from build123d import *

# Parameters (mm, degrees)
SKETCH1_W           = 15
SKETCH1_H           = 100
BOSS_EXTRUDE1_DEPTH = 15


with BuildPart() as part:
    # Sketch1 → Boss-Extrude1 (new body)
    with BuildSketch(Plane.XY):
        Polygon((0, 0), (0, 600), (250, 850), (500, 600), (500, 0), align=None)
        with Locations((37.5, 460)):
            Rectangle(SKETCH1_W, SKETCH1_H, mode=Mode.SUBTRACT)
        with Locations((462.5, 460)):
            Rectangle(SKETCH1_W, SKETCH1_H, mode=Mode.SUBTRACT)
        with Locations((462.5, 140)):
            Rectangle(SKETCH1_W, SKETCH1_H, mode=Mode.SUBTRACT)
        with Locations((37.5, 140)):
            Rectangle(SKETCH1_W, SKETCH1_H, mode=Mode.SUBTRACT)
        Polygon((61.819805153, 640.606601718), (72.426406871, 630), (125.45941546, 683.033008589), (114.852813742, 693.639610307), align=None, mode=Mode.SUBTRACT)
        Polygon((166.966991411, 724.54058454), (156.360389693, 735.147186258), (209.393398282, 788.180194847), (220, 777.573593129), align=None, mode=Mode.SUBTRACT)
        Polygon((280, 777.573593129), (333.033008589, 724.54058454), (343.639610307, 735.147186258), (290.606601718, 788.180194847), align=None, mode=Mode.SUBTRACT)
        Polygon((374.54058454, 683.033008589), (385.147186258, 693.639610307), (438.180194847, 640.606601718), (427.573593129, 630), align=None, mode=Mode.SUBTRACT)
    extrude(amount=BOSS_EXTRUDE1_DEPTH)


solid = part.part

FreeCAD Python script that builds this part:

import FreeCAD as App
import Part
import Sketcher

doc = App.newDocument("Part")
body = doc.addObject("PartDesign::Body", "Body")

# Sketch on XY plane
sketch1 = body.newObject("Sketcher::SketchObject", "Sketch")
sketch1.AttachmentSupport = (doc.getObject("XY_Plane"), [""])
sketch1.MapMode = "FlatFace"
sketch1.addGeometry(Part.LineSegment(App.Vector(0, 600, 0), App.Vector(0, 0, 0)), False)
sketch1.addGeometry(Part.LineSegment(App.Vector(0, 0, 0), App.Vector(500, 0, 0)), False)
sketch1.addGeometry(Part.LineSegment(App.Vector(500, 0, 0), App.Vector(500, 600, 0)), False)
sketch1.addGeometry(Part.LineSegment(App.Vector(500, 600, 0), App.Vector(250, 850, 0)), False)
sketch1.addGeometry(Part.LineSegment(App.Vector(250, 850, 0), App.Vector(0, 600, 0)), False)
sketch1.addGeometry(Part.LineSegment(App.Vector(455, 90, 0), App.Vector(455, 190, 0)), False)
sketch1.addGeometry(Part.LineSegment(App.Vector(455, 190, 0), App.Vector(470, 190, 0)), False)
sketch1.addGeometry(Part.LineSegment(App.Vector(470, 190, 0), App.Vector(470, 90, 0)), False)
sketch1.addGeometry(Part.LineSegment(App.Vector(470, 90, 0), App.Vector(455, 90, 0)), False)
sketch1.addGeometry(Part.LineSegment(App.Vector(30, 90, 0), App.Vector(30, 190, 0)), False)
sketch1.addGeometry(Part.LineSegment(App.Vector(30, 190, 0), App.Vector(45, 190, 0)), False)
sketch1.addGeometry(Part.LineSegment(App.Vector(45, 190, 0), App.Vector(45, 90, 0)), False)
sketch1.addGeometry(Part.LineSegment(App.Vector(45, 90, 0), App.Vector(30, 90, 0)), False)
sketch1.addGeometry(Part.LineSegment(App.Vector(455, 410, 0), App.Vector(455, 510, 0)), False)
sketch1.addGeometry(Part.LineSegment(App.Vector(455, 510, 0), App.Vector(470, 510, 0)), False)
sketch1.addGeometry(Part.LineSegment(App.Vector(470, 510, 0), App.Vector(470, 410, 0)), False)
sketch1.addGeometry(Part.LineSegment(App.Vector(470, 410, 0), App.Vector(455, 410, 0)), False)
sketch1.addGeometry(Part.LineSegment(App.Vector(375, 683, 0), App.Vector(385, 694, 0)), False)
sketch1.addGeometry(Part.LineSegment(App.Vector(385, 694, 0), App.Vector(438, 641, 0)), False)
sketch1.addGeometry(Part.LineSegment(App.Vector(438, 641, 0), App.Vector(428, 630, 0)), False)
sketch1.addGeometry(Part.LineSegment(App.Vector(428, 630, 0), App.Vector(375, 683, 0)), False)
sketch1.addGeometry(Part.LineSegment(App.Vector(280, 778, 0), App.Vector(291, 788, 0)), False)
sketch1.addGeometry(Part.LineSegment(App.Vector(291, 788, 0), App.Vector(344, 735, 0)), False)
sketch1.addGeometry(Part.LineSegment(App.Vector(344, 735, 0), App.Vector(333, 725, 0)), False)
sketch1.addGeometry(Part.LineSegment(App.Vector(333, 725, 0), App.Vector(280, 778, 0)), False)
sketch1.addGeometry(Part.LineSegment(App.Vector(30, 410, 0), App.Vector(30, 510, 0)), False)
sketch1.addGeometry(Part.LineSegment(App.Vector(30, 510, 0), App.Vector(45, 510, 0)), False)
sketch1.addGeometry(Part.LineSegment(App.Vector(45, 510, 0), App.Vector(45, 410, 0)), False)
sketch1.addGeometry(Part.LineSegment(App.Vector(45, 410, 0), App.Vector(30, 410, 0)), False)
sketch1.addGeometry(Part.LineSegment(App.Vector(167, 725, 0), App.Vector(156, 735, 0)), False)
sketch1.addGeometry(Part.LineSegment(App.Vector(156, 735, 0), App.Vector(209, 788, 0)), False)
sketch1.addGeometry(Part.LineSegment(App.Vector(209, 788, 0), App.Vector(220, 778, 0)), False)
sketch1.addGeometry(Part.LineSegment(App.Vector(220, 778, 0), App.Vector(167, 725, 0)), False)
sketch1.addGeometry(Part.LineSegment(App.Vector(62, 641, 0), App.Vector(115, 694, 0)), False)
sketch1.addGeometry(Part.LineSegment(App.Vector(115, 694, 0), App.Vector(125, 683, 0)), False)
sketch1.addGeometry(Part.LineSegment(App.Vector(125, 683, 0), App.Vector(72, 630, 0)), False)
sketch1.addGeometry(Part.LineSegment(App.Vector(72, 630, 0), App.Vector(62, 641, 0)), False)
sketch1.addConstraint(Sketcher.Constraint("Coincident", 0, 2, 1, 1))
sketch1.addConstraint(Sketcher.Constraint("Coincident", 1, 2, 2, 1))
sketch1.addConstraint(Sketcher.Constraint("Coincident", 2, 2, 3, 1))
sketch1.addConstraint(Sketcher.Constraint("Coincident", 3, 2, 4, 1))
sketch1.addConstraint(Sketcher.Constraint("Coincident", 4, 2, 0, 1))
sketch1.addConstraint(Sketcher.Constraint("Coincident", 5, 2, 6, 1))
sketch1.addConstraint(Sketcher.Constraint("Coincident", 6, 2, 7, 1))
sketch1.addConstraint(Sketcher.Constraint("Coincident", 7, 2, 8, 1))
sketch1.addConstraint(Sketcher.Constraint("Coincident", 8, 2, 5, 1))
sketch1.addConstraint(Sketcher.Constraint("Coincident", 9, 2, 10, 1))
sketch1.addConstraint(Sketcher.Constraint("Coincident", 10, 2, 11, 1))
sketch1.addConstraint(Sketcher.Constraint("Coincident", 11, 2, 12, 1))
sketch1.addConstraint(Sketcher.Constraint("Coincident", 12, 2, 9, 1))
sketch1.addConstraint(Sketcher.Constraint("Coincident", 13, 2, 14, 1))
sketch1.addConstraint(Sketcher.Constraint("Coincident", 14, 2, 15, 1))
sketch1.addConstraint(Sketcher.Constraint("Coincident", 15, 2, 16, 1))
sketch1.addConstraint(Sketcher.Constraint("Coincident", 16, 2, 13, 1))
sketch1.addConstraint(Sketcher.Constraint("Coincident", 17, 2, 18, 1))
sketch1.addConstraint(Sketcher.Constraint("Coincident", 18, 2, 19, 1))
sketch1.addConstraint(Sketcher.Constraint("Coincident", 19, 2, 20, 1))
sketch1.addConstraint(Sketcher.Constraint("Coincident", 20, 2, 17, 1))
sketch1.addConstraint(Sketcher.Constraint("Coincident", 21, 2, 22, 1))
sketch1.addConstraint(Sketcher.Constraint("Coincident", 22, 2, 23, 1))
sketch1.addConstraint(Sketcher.Constraint("Coincident", 23, 2, 24, 1))
sketch1.addConstraint(Sketcher.Constraint("Coincident", 24, 2, 21, 1))
sketch1.addConstraint(Sketcher.Constraint("Coincident", 25, 2, 26, 1))
sketch1.addConstraint(Sketcher.Constraint("Coincident", 26, 2, 27, 1))
sketch1.addConstraint(Sketcher.Constraint("Coincident", 27, 2, 28, 1))
sketch1.addConstraint(Sketcher.Constraint("Coincident", 28, 2, 25, 1))
sketch1.addConstraint(Sketcher.Constraint("Coincident", 29, 2, 30, 1))
sketch1.addConstraint(Sketcher.Constraint("Coincident", 30, 2, 31, 1))
sketch1.addConstraint(Sketcher.Constraint("Coincident", 31, 2, 32, 1))
sketch1.addConstraint(Sketcher.Constraint("Coincident", 32, 2, 29, 1))
sketch1.addConstraint(Sketcher.Constraint("Coincident", 33, 2, 34, 1))
sketch1.addConstraint(Sketcher.Constraint("Coincident", 34, 2, 35, 1))
sketch1.addConstraint(Sketcher.Constraint("Coincident", 35, 2, 36, 1))
sketch1.addConstraint(Sketcher.Constraint("Coincident", 36, 2, 33, 1))
sketch1.addConstraint(Sketcher.Constraint("Vertical", 0))
sketch1.addConstraint(Sketcher.Constraint("Horizontal", 1))
sketch1.addConstraint(Sketcher.Constraint("Vertical", 2))
sketch1.addConstraint(Sketcher.Constraint("Vertical", 5))
sketch1.addConstraint(Sketcher.Constraint("Horizontal", 6))
sketch1.addConstraint(Sketcher.Constraint("Vertical", 7))
sketch1.addConstraint(Sketcher.Constraint("Horizontal", 8))
sketch1.addConstraint(Sketcher.Constraint("Vertical", 9))
sketch1.addConstraint(Sketcher.Constraint("Horizontal", 10))
sketch1.addConstraint(Sketcher.Constraint("Vertical", 11))
sketch1.addConstraint(Sketcher.Constraint("Horizontal", 12))
sketch1.addConstraint(Sketcher.Constraint("Vertical", 13))
sketch1.addConstraint(Sketcher.Constraint("Horizontal", 14))
sketch1.addConstraint(Sketcher.Constraint("Vertical", 15))
sketch1.addConstraint(Sketcher.Constraint("Horizontal", 16))
sketch1.addConstraint(Sketcher.Constraint("Vertical", 25))
sketch1.addConstraint(Sketcher.Constraint("Horizontal", 26))
sketch1.addConstraint(Sketcher.Constraint("Vertical", 27))
sketch1.addConstraint(Sketcher.Constraint("Horizontal", 28))
sketch1.addConstraint(Sketcher.Constraint("Coincident", 0, 2, -1, 1))
sketch1.addConstraint(Sketcher.Constraint("Perpendicular", 3, 4))
sketch1.addConstraint(Sketcher.Constraint("Parallel", 4, 17))
sketch1.addConstraint(Sketcher.Constraint("Perpendicular", 17, 18))
sketch1.addConstraint(Sketcher.Constraint("Perpendicular", 18, 19))
sketch1.addConstraint(Sketcher.Constraint("Perpendicular", 19, 20))
sketch1.addConstraint(Sketcher.Constraint("Perpendicular", 20, 21))
sketch1.addConstraint(Sketcher.Constraint("Perpendicular", 21, 22))
sketch1.addConstraint(Sketcher.Constraint("Perpendicular", 22, 23))
sketch1.addConstraint(Sketcher.Constraint("Perpendicular", 23, 24))
sketch1.addConstraint(Sketcher.Constraint("Parallel", 24, 29))
sketch1.addConstraint(Sketcher.Constraint("Perpendicular", 29, 30))
sketch1.addConstraint(Sketcher.Constraint("Perpendicular", 30, 31))
sketch1.addConstraint(Sketcher.Constraint("Perpendicular", 31, 32))
sketch1.addConstraint(Sketcher.Constraint("Parallel", 32, 33))
sketch1.addConstraint(Sketcher.Constraint("Perpendicular", 33, 34))
sketch1.addConstraint(Sketcher.Constraint("Perpendicular", 34, 35))
sketch1.addConstraint(Sketcher.Constraint("Perpendicular", 35, 36))
sketch1.addConstraint(Sketcher.Constraint("Horizontal", 2, 2, 4, 2))
sketch1.addConstraint(Sketcher.Constraint("Horizontal", 6, 2, 9, 2))
sketch1.addConstraint(Sketcher.Constraint("Horizontal", 8, 2, 11, 2))
sketch1.addConstraint(Sketcher.Constraint("Horizontal", 14, 2, 25, 2))
sketch1.addConstraint(Sketcher.Constraint("Horizontal", 16, 2, 27, 2))
sketch1.addConstraint(Sketcher.Constraint("Horizontal", 22, 2, 29, 2))
sketch1.addConstraint(Sketcher.Constraint("Horizontal", 21, 2, 30, 2))
sketch1.addConstraint(Sketcher.Constraint("Horizontal", 24, 2, 31, 2))
sketch1.addConstraint(Sketcher.Constraint("Horizontal", 17, 2, 33, 2))
sketch1.addConstraint(Sketcher.Constraint("Horizontal", 20, 2, 34, 2))
sketch1.addConstraint(Sketcher.Constraint("Horizontal", 19, 2, 35, 2))
sketch1.addConstraint(Sketcher.Constraint("Vertical", 8, 2, 13, 2))
sketch1.addConstraint(Sketcher.Constraint("Vertical", 7, 2, 14, 2))
sketch1.addConstraint(Sketcher.Constraint("Vertical", 12, 2, 25, 2))
sketch1.addConstraint(Sketcher.Constraint("Vertical", 11, 2, 26, 2))
sketch1.addConstraint(Sketcher.Constraint("Equal", 8, 10))
sketch1.addConstraint(Sketcher.Constraint("Equal", 11, 13))
sketch1.addConstraint(Sketcher.Constraint("Equal", 3, 4))
sketch1.addConstraint(Sketcher.Constraint("Equal", 19, 21))
sketch1.addConstraint(Sketcher.Constraint("Equal", 20, 22))
sketch1.addConstraint(Sketcher.Constraint("DistanceX", 1, 1, 1, 2, 500.0))
sketch1.addConstraint(Sketcher.Constraint("DistanceX", 6, 1, 6, 2, 15.0))
sketch1.addConstraint(Sketcher.Constraint("DistanceY", 0, 2, 0, 1, 600.0))
sketch1.addConstraint(Sketcher.Constraint("DistanceY", 5, 1, 5, 2, 100.0))
sketch1.addConstraint(Sketcher.Constraint("Distance", 17, 15.0))
sketch1.addConstraint(Sketcher.Constraint("Distance", 18, 75.0))
sketch1.addConstraint(Sketcher.Constraint("DistanceX", -1, 1, 5, 2, 455.0))
sketch1.addConstraint(Sketcher.Constraint("DistanceY", -1, 1, 5, 2, 190.0))
sketch1.addConstraint(Sketcher.Constraint("DistanceX", -1, 1, 9, 2, 30.0))
sketch1.addConstraint(Sketcher.Constraint("DistanceY", -1, 1, 13, 2, 510.0))
sketch1.addConstraint(Sketcher.Constraint("DistanceY", -1, 1, 19, 2, 630.0))
sketch1.addConstraint(Sketcher.Constraint("DistanceX", -1, 1, 24, 2, 280.0))
sketch1.addConstraint(Sketcher.Constraint("DistanceX", -1, 1, 31, 2, 220.0))
sketch1.addConstraint(Sketcher.Constraint("DistanceX", 21, 2, 19, 2, 136.966991))
sketch1.addConstraint(Sketcher.Constraint("DistanceY", -1, 1, 21, 2, 788.180195))
sketch1.addConstraint(Sketcher.Constraint("DistanceX", -1, 1, 33, 2, 114.852814))
pad1 = body.newObject("PartDesign::Pad", "Pad")
pad1.Profile = sketch1
pad1.Length = 15

doc.recompute()
